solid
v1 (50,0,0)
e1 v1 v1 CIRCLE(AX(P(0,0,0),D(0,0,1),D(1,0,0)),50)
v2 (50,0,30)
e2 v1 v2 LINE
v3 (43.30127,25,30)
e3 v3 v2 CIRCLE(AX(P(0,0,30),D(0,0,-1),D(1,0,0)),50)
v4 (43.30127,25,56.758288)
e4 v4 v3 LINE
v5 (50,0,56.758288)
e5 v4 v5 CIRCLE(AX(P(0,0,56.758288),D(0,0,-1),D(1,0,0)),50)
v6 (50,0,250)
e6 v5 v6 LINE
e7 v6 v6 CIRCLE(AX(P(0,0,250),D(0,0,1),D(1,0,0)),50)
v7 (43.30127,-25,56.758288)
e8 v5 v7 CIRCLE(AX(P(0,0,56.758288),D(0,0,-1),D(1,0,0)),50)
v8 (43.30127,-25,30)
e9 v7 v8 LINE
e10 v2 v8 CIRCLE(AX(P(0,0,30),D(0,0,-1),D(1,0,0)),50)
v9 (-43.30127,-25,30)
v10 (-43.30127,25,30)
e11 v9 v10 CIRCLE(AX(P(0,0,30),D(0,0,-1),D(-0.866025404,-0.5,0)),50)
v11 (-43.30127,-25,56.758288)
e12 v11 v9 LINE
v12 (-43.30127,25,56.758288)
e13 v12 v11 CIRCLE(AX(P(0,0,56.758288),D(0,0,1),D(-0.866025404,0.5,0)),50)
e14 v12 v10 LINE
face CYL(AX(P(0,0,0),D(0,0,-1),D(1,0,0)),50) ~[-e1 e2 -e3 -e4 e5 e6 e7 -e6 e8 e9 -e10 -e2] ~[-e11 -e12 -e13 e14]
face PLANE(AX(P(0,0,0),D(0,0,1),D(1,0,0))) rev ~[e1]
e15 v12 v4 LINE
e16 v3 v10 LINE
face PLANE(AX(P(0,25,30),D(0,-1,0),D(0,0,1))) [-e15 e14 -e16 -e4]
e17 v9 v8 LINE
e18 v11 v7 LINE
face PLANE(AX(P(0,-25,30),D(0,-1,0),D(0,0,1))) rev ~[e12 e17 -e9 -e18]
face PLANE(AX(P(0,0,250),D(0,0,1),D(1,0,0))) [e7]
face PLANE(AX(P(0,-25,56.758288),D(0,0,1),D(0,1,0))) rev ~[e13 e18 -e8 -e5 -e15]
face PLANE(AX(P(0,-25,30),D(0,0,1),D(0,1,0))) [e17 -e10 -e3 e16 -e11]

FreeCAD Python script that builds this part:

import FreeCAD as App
import Part
import Sketcher

V = App.Vector


def add_polygon(sketch, points):
    """Adds a closed chain of lines whose ends are joined by coincident constraints."""
    first, n = sketch.GeometryCount, len(points)
    for a, b in zip(points, points[1:] + points[:1]):
        sketch.addGeometry(Part.LineSegment(App.Vector(*a, 0), App.Vector(*b, 0)), False)
    for i in range(n):
        sketch.addConstraint(Sketcher.Constraint("Coincident", first + i, 2, first + (i + 1) % n, 1))

doc = App.newDocument("Part")
body = doc.addObject("PartDesign::Body", "Body")

sketch1 = doc.addObject("Sketcher::SketchObject", "Sketch")
body.addObject(sketch1)
sketch1.AttachmentSupport = (doc.XY_Plane, [""])
sketch1.MapMode = "FlatFace"
sketch1.addGeometry(Part.Circle(V(0, 0, 0), V(0, 0, 1), 50), False)
sketch1.addConstraint([
    Sketcher.Constraint("Coincident", 0, 3, -1, 1),
    Sketcher.Constraint("Diameter", 0, 100.0),
])
pad1 = doc.addObject("PartDesign::Pad", "Pad")
body.addObject(pad1)
pad1.Profile = sketch1
pad1.Length = 250

sketch2 = doc.addObject("Sketcher::SketchObject", "Sketch001")
body.addObject(sketch2)
sketch2.AttachmentSupport = (doc.YZ_Plane, [""])
sketch2.MapMode = "FlatFace"
add_polygon(sketch2, [(-25, 57), (-25, 30), (25, 30), (25, 57)])
sketch2.addConstraint([
    Sketcher.Constraint("Vertical", 0),
    Sketcher.Constraint("Horizontal", 1),
    Sketcher.Constraint("Vertical", 2),
    Sketcher.Constraint("Horizontal", 3),
    Sketcher.Constraint("DistanceX", 1, 1, 1, 2, 50.0),
    Sketcher.Constraint("DistanceX", 0, 2, -1, 1, 25.0),
    Sketcher.Constraint("DistanceY", -1, 1, 0, 2, 30.0),
    Sketcher.Constraint("DistanceY", 0, 2, 0, 1, 26.758289),
])
pocket1 = doc.addObject("PartDesign::Pocket", "Pocket")
body.addObject(pocket1)
pocket1.Profile = sketch2
pocket1.Type = "ThroughAll"
pocket1.Midplane = True

doc.recompute()
